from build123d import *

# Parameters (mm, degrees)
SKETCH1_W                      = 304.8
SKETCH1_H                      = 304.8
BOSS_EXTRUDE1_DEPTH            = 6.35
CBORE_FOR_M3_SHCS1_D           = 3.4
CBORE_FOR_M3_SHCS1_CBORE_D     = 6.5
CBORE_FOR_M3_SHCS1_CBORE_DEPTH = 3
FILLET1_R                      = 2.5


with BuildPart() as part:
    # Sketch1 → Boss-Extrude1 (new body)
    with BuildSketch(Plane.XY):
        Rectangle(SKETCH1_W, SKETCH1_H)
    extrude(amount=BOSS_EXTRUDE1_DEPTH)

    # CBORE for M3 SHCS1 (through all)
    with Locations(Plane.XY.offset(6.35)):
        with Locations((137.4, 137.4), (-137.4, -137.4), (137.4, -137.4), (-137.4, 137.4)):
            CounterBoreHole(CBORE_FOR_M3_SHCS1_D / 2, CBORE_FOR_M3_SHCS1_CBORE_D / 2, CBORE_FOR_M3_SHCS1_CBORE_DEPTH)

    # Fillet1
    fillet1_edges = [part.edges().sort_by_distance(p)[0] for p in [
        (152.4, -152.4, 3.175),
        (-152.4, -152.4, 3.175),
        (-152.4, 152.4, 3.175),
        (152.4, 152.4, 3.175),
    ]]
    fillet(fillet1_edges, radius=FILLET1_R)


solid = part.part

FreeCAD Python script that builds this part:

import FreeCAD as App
import Part
import Sketcher

V = App.Vector


def edges_at(feature, points):
    """Names of the edges that pass closest to the given points."""
    edges = feature.Shape.Edges
    near = lambda p: min(range(len(edges)), key=lambda i: edges[i].distToShape(Part.Vertex(*p))[0])
    return sorted({f"Edge{near(p) + 1}" for p in points})


def add_polygon(sketch, points):
    """Adds a closed chain of lines whose ends are joined by coincident constraints."""
    first, n = sketch.GeometryCount, len(points)
    for a, b in zip(points, points[1:] + points[:1]):
        sketch.addGeometry(Part.LineSegment(App.Vector(*a, 0), App.Vector(*b, 0)), False)
    for i in range(n):
        sketch.addConstraint(Sketcher.Constraint("Coincident", first + i, 2, first + (i + 1) % n, 1))

doc = App.newDocument("Part")
body = doc.addObject("PartDesign::Body", "Body")

# Sketch on XY plane
sketch1 = body.newObject("Sketcher::SketchObject", "Sketch")
sketch1.AttachmentSupport = (doc.getObject("XY_Plane"), [""])
sketch1.MapMode = "FlatFace"
add_polygon(sketch1, [(-152, 152), (-152, -152), (152, -152), (152, 152)])  # lines 0-3
sketch1.addConstraint(Sketcher.Constraint("Vertical", 0))
sketch1.addConstraint(Sketcher.Constraint("Horizontal", 1))
sketch1.addConstraint(Sketcher.Constraint("Vertical", 2))
sketch1.addConstraint(Sketcher.Constraint("Horizontal", 3))
sketch1.addConstraint(Sketcher.Constraint("Symmetric", 0, 2, 2, 2, -1, 1))
sketch1.addConstraint(Sketcher.Constraint("Equal", 3, 0))
sketch1.addConstraint(Sketcher.Constraint("DistanceX", 1, 1, 1, 2, 304.8))
pad1 = body.newObject("PartDesign::Pad", "Pad")
pad1.Profile = sketch1
pad1.Length = 6.35

# Sketch on XY plane
sketch2 = body.newObject("Sketcher::SketchObject", "Sketch001")
sketch2.AttachmentSupport = (doc.getObject("XY_Plane"), [""])
sketch2.MapMode = "FlatFace"
sketch2.AttachmentOffset = App.Placement(V(0, 0, 6.35), App.Rotation())
sketch2.addGeometry(Part.Circle(V(137.4, 137.4, 0), V(0, 0, 1), 1.7), False)
sketch2.addGeometry(Part.Circle(V(-137.4, -137.4, 0), V(0, 0, 1), 1.7), False)
sketch2.addGeometry(Part.Circle(V(137.4, -137.4, 0), V(0, 0, 1), 1.7), False)
sketch2.addGeometry(Part.Circle(V(-137.4, 137.4, 0), V(0, 0, 1), 1.7), False)
sketch2.addConstraint(Sketcher.Constraint("Equal", 0, 1))
sketch2.addConstraint(Sketcher.Constraint("Equal", 1, 2))
sketch2.addConstraint(Sketcher.Constraint("Equal", 2, 3))
sketch2.addConstraint(Sketcher.Constraint("Symmetric", 0, 3, 1, 3, -1, 1))
sketch2.addConstraint(Sketcher.Constraint("Symmetric", 2, 3, 3, 3, -1, 1))
sketch2.addConstraint(Sketcher.Constraint("Symmetric", 1, 3, 2, 3, -2))
sketch2.addConstraint(Sketcher.Constraint("Diameter", 0, 3.4))
sketch2.addConstraint(Sketcher.Constraint("DistanceX", -1, 1, 0, 3, 137.4))
sketch2.addConstraint(Sketcher.Constraint("DistanceY", -1, 1, 0, 3, 137.4))
doc.recompute()
hole = body.newObject("PartDesign::Hole", "Hole")
hole.Profile = sketch2
hole.ThreadType = "None"
hole.Diameter = 3.4
hole.DepthType = "ThroughAll"
hole.HoleCutType = "Counterbore"
hole.HoleCutDiameter = 6.5
hole.HoleCutDepth = 3
doc.recompute()

fillet = body.newObject("PartDesign::Fillet", "Fillet")
fillet.Base = (hole, edges_at(hole, [
    (152.4, -152.4, 3.175),
    (-152.4, -152.4, 3.175),
    (-152.4, 152.4, 3.175),
    (152.4, 152.4, 3.175),
]))
fillet.Radius = 2.5

doc.recompute()
